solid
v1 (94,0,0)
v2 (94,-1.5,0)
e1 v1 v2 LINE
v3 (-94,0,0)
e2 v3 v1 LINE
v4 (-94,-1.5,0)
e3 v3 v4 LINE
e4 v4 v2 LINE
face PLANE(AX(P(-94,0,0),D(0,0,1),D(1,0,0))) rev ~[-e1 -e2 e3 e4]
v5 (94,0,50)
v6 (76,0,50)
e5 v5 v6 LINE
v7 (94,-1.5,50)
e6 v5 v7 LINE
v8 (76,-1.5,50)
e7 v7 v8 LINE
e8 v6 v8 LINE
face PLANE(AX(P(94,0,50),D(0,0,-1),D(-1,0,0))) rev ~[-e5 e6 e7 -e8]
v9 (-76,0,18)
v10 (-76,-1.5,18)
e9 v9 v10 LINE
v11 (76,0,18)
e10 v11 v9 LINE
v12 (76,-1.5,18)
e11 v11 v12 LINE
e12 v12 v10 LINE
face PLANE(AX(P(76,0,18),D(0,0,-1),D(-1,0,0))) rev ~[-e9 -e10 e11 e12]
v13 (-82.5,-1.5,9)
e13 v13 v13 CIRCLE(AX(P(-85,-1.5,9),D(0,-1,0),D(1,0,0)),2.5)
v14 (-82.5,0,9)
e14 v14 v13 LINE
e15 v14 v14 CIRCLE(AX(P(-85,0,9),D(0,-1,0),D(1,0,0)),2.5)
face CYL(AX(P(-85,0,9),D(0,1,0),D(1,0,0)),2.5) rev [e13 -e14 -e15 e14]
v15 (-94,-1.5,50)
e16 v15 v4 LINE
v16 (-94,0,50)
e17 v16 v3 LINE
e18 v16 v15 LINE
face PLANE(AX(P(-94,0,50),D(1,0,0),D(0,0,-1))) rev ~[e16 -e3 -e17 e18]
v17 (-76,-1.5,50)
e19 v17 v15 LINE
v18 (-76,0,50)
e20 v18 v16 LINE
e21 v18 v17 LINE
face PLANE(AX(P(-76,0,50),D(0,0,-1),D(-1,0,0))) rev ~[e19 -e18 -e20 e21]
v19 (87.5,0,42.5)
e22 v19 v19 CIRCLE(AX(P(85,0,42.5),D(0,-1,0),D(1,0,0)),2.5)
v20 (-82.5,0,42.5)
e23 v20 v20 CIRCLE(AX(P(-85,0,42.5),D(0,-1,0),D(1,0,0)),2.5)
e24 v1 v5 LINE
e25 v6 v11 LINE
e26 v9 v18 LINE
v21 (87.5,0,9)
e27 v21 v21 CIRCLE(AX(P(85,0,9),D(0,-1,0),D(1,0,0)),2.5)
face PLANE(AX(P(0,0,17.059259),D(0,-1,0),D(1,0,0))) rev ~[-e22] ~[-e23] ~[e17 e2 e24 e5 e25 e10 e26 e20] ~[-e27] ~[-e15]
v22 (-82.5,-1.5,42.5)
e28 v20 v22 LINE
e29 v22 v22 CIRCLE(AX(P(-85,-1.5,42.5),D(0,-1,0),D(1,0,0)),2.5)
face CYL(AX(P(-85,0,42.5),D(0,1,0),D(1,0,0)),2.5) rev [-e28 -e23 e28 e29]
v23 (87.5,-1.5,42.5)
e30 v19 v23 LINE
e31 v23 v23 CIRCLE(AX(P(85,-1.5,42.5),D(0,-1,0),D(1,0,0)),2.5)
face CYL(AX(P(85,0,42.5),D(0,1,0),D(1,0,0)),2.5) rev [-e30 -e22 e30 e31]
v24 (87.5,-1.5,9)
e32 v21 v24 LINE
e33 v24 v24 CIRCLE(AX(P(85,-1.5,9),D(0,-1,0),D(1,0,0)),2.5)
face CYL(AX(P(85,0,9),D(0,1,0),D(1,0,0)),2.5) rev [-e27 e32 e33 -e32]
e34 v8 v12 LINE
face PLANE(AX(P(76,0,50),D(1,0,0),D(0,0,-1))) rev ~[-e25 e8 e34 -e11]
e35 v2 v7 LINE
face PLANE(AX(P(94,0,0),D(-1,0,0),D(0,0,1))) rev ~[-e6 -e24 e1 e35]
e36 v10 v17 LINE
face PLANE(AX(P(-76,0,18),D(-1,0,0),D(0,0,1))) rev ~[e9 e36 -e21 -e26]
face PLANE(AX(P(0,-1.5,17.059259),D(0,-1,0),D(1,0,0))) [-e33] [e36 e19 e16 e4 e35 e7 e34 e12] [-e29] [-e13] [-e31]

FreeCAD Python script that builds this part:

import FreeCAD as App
import Part
import Sketcher
from FreeCAD import Vector
Q = App.Units.Quantity


def add_polygon(sketch, points):
    """Adds a closed chain of lines whose ends are joined by coincident constraints."""
    first, n = sketch.GeometryCount, len(points)
    for a, b in zip(points, points[1:] + points[:1]):
        sketch.addGeometry(Part.LineSegment(App.Vector(*a, 0), App.Vector(*b, 0)), False)
    for i in range(n):
        sketch.addConstraint(Sketcher.Constraint("Coincident", first + i, 2, first + (i + 1) % n, 1))

doc = App.newDocument("Part")
body = doc.addObject("PartDesign::Body", "Body")

sketch1 = body.newObject("Sketcher::SketchObject", "Sketch")
sketch1.AttachmentSupport = (doc.getObject("XZ_Plane"), [""])
sketch1.MapMode = "FlatFace"
add_polygon(sketch1, [(-94, 0), (94, 0), (94, 50), (76, 50), (76, 18), (-76, 18), (-76, 50), (-94, 50)])
sketch1.addGeometry(Part.Circle(Vector(-85, 9, 0), Vector(0, 0, 1), 2.5), False)
sketch1.addGeometry(Part.Circle(Vector(85, 9, 0), Vector(0, 0, 1), 2.5), False)
sketch1.addGeometry(Part.Circle(Vector(-85, 42.5, 0), Vector(0, 0, 1), 2.5), False)
sketch1.addGeometry(Part.Circle(Vector(85, 42.5, 0), Vector(0, 0, 1), 2.5), False)
sketch1.addConstraint([
    Sketcher.Constraint("Horizontal", 0),
    Sketcher.Constraint("Vertical", 1),
    Sketcher.Constraint("Horizontal", 2),
    Sketcher.Constraint("Vertical", 3),
    Sketcher.Constraint("Horizontal", 4),
    Sketcher.Constraint("Vertical", 5),
    Sketcher.Constraint("Horizontal", 6),
    Sketcher.Constraint("Vertical", 7),
    Sketcher.Constraint("Equal", 8, 9),
    Sketcher.Constraint("Equal", 9, 10),
    Sketcher.Constraint("Equal", 10, 11),
    Sketcher.Constraint("Symmetric", 0, 2, 7, 2, -1, 1),
    Sketcher.Constraint("Symmetric", 8, 3, 9, 3, -2),
    Sketcher.Constraint("Symmetric", 10, 3, 11, 3, -2),
    Sketcher.Constraint("Symmetric", 2, 2, 5, 2, -2),
    Sketcher.Constraint("Vertical", 8, 3, 10, 3),
    Sketcher.Constraint("Diameter", 8, Q("5 mm")),
    Sketcher.Constraint("DistanceX", 0, 1, 0, 2, Q("188 mm")),
    Sketcher.Constraint("DistanceX", 2, 2, 2, 1, Q("18 mm")),
    Sketcher.Constraint("DistanceY", 1, 1, 1, 2, Q("50 mm")),
    Sketcher.Constraint("DistanceY", 3, 2, 3, 1, Q("32 mm")),
    Sketcher.Constraint("DistanceX", 8, 3, -1, 1, Q("85 mm")),
    Sketcher.Constraint("DistanceY", -1, 1, 8, 3, Q("9 mm")),
    Sketcher.Constraint("DistanceY", -1, 1, 10, 3, Q("42.5 mm")),
])
pad1 = body.newObject("PartDesign::Pad", "Pad")
pad1.Profile = sketch1
pad1.Length = 1.5

doc.recompute()
